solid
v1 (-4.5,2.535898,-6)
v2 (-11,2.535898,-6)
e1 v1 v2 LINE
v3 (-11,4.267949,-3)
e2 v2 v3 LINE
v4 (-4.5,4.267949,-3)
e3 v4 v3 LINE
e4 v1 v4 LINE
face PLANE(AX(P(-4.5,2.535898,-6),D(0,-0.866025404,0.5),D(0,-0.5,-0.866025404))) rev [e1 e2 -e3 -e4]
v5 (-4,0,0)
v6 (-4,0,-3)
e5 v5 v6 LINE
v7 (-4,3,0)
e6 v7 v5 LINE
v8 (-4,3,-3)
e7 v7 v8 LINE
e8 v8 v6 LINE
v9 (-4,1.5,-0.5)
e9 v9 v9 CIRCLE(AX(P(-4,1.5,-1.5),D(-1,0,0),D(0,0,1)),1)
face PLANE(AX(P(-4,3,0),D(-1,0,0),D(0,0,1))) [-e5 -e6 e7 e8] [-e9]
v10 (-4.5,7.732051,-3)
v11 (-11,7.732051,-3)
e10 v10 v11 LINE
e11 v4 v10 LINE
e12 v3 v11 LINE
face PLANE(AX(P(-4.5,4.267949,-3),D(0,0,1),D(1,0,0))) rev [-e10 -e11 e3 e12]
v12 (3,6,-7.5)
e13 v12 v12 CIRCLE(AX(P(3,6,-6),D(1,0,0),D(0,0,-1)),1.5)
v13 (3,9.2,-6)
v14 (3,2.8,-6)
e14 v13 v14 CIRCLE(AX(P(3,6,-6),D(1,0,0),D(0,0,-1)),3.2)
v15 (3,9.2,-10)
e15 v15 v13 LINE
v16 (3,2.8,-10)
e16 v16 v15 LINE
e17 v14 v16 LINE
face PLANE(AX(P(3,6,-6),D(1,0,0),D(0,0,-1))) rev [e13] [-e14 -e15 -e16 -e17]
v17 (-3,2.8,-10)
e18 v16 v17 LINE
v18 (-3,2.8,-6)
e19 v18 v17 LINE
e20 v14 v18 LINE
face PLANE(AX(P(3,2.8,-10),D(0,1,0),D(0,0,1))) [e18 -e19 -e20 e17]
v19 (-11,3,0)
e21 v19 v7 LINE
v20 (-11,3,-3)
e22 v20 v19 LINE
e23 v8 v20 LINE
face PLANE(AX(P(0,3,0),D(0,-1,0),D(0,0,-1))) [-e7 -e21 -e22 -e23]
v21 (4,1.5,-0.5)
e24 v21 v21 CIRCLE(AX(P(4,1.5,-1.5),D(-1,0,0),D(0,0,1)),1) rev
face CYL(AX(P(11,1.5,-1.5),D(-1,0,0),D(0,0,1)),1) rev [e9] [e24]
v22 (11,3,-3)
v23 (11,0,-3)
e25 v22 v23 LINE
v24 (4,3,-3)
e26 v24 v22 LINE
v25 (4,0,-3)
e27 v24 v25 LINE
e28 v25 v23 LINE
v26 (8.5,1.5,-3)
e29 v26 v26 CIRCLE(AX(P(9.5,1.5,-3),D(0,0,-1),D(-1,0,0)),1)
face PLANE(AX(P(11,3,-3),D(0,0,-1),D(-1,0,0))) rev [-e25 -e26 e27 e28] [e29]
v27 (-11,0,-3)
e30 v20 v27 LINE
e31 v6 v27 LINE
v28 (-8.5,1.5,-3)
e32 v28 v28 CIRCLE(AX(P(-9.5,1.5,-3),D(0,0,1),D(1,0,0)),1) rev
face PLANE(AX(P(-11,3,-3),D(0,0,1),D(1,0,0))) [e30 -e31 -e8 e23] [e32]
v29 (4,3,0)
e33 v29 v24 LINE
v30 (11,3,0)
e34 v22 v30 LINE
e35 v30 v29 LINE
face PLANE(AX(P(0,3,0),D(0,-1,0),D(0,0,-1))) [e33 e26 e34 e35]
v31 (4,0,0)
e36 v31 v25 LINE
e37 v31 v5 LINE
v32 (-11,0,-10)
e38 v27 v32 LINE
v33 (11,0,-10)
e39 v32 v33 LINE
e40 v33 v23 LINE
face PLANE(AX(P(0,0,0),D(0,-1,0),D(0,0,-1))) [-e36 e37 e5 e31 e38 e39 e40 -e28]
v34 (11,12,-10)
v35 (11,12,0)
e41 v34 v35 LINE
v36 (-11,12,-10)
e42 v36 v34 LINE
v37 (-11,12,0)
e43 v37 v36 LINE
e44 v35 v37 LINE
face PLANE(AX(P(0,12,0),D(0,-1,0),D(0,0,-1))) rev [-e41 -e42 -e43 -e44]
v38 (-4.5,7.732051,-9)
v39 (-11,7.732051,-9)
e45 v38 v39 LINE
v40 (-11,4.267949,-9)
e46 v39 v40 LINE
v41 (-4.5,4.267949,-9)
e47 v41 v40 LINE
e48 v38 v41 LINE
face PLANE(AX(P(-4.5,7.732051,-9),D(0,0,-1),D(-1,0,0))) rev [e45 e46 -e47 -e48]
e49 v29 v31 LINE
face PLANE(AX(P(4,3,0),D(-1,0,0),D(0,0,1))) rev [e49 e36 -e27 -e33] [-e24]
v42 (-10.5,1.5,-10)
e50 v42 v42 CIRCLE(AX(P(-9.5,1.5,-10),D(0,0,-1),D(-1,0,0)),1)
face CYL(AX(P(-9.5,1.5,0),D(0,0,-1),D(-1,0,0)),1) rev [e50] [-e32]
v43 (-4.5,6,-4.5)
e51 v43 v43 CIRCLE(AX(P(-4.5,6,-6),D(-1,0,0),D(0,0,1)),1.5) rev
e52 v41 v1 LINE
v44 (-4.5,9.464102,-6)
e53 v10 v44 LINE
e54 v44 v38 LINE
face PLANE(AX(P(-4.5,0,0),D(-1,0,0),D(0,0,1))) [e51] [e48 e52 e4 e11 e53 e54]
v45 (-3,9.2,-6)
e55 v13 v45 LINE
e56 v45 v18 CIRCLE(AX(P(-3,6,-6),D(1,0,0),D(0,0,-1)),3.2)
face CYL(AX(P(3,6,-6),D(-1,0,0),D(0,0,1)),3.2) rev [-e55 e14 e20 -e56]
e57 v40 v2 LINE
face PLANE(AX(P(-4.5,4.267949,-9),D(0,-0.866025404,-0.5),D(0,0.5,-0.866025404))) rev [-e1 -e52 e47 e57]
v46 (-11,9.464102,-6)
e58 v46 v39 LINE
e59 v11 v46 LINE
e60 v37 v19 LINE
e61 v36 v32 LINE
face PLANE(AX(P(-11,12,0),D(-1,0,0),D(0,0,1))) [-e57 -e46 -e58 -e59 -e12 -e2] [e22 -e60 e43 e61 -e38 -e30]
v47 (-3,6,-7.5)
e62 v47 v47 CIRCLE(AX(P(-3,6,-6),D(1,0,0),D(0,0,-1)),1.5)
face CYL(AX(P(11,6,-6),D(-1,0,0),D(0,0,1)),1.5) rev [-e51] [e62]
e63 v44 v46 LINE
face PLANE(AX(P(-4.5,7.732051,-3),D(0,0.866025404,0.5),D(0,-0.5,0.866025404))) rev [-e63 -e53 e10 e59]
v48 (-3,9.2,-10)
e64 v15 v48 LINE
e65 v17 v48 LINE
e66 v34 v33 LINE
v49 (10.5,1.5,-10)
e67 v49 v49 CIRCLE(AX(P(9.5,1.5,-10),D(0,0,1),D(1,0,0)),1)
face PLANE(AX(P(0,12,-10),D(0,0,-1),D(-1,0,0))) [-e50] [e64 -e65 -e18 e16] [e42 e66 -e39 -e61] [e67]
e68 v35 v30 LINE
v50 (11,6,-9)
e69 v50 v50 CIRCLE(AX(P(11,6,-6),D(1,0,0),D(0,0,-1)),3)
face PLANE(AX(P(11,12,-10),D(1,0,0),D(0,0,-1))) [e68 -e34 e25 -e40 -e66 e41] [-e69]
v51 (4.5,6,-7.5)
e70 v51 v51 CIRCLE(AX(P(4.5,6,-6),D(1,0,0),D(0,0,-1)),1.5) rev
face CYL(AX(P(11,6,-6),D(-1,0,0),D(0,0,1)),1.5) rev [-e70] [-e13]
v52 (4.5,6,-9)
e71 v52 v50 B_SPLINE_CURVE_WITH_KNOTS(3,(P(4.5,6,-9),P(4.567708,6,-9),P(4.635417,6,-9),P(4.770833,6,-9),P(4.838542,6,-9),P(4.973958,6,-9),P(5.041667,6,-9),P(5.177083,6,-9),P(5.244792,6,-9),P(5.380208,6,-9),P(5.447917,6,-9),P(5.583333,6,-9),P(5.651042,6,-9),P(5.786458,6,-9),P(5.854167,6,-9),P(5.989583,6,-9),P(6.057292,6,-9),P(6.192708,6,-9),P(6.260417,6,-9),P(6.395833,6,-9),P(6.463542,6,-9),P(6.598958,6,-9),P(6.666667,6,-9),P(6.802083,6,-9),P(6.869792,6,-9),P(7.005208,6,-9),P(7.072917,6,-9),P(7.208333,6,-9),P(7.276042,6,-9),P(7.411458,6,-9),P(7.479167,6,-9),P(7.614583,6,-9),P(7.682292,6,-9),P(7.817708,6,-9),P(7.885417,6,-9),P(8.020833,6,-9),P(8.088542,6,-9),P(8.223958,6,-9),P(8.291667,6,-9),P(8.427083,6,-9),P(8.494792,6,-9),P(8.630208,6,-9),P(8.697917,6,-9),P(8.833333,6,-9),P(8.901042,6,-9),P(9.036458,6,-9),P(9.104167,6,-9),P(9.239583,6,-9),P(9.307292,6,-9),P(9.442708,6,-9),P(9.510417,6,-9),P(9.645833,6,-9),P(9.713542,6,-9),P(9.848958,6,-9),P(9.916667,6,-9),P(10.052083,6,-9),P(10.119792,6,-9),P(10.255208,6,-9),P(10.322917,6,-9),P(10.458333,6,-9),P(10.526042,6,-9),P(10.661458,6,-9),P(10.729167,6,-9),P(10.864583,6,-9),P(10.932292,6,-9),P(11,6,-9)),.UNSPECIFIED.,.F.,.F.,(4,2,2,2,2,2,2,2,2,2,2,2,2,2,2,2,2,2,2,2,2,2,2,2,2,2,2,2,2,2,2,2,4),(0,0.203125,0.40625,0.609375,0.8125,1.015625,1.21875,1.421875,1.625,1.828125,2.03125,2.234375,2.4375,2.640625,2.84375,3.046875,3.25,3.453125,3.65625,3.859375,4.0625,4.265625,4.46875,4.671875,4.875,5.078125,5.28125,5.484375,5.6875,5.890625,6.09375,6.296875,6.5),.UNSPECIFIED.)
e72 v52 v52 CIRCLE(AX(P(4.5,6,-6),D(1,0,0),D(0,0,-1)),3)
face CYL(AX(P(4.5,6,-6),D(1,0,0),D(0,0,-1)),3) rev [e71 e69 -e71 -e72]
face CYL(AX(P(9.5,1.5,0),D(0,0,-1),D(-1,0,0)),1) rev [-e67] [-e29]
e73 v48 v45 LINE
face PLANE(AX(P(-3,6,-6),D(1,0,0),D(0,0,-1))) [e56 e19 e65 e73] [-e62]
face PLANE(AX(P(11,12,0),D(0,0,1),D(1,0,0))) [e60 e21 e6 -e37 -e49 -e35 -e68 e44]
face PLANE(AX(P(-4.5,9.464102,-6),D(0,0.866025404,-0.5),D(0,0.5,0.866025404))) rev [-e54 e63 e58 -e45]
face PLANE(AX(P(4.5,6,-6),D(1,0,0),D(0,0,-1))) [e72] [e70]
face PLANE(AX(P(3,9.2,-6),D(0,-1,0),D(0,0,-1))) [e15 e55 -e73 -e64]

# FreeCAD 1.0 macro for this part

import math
import FreeCAD as App
import Part
import Sketcher

V = App.Vector
Q = App.Units.Quantity

doc = App.newDocument("Part")
body = doc.addObject("PartDesign::Body", "Body")

# Sketch on XZ plane
sketch1 = body.newObject("Sketcher::SketchObject", "Sketch")
sketch1.AttachmentSupport = (doc.getObject("XZ_Plane"), [""])
sketch1.MapMode = "FlatFace"
sketch1.addGeometry([
    Part.LineSegment(V(11, -10, 0), V(-11, -10, 0)),
    Part.LineSegment(V(-11, -10, 0), V(-11, 0, 0)),
    Part.LineSegment(V(-11, 0, 0), V(11, 0, 0)),
    Part.LineSegment(V(11, 0, 0), V(11, -10, 0)),
], False)
sketch1.addConstraint([
    Sketcher.Constraint("Coincident", 0, 2, 1, 1),
    Sketcher.Constraint("Coincident", 1, 2, 2, 1),
    Sketcher.Constraint("Coincident", 2, 2, 3, 1),
    Sketcher.Constraint("Coincident", 3, 2, 0, 1),
    Sketcher.Constraint("Horizontal", 0),
    Sketcher.Constraint("Vertical", 1),
    Sketcher.Constraint("Horizontal", 2),
    Sketcher.Constraint("Vertical", 3),
    Sketcher.Constraint("Symmetric", 1, 2, 2, 2, -1, 1),
    Sketcher.Constraint("DistanceX", 0, 2, 0, 1, 22.0),
    Sketcher.Constraint("DistanceY", 1, 1, 1, 2, 10.0),
])
pad1 = body.newObject("PartDesign::Pad", "Pad")
pad1.Profile = sketch1
pad1.Length = 12
pad1.Reversed = True

# Sketch on XY plane
sketch2 = body.newObject("Sketcher::SketchObject", "Sketch001")
sketch2.AttachmentSupport = (doc.getObject("XY_Plane"), [""])
sketch2.MapMode = "FlatFace"
sketch2.AttachmentOffset = App.Placement(V(0, 0, -10), App.Rotation())
sketch2.addGeometry(Part.Circle(V(-9.5, 1.5, 0), V(0, 0, 1), 1), False)
sketch2.addConstraint([
    Sketcher.Constraint("Diameter", 0, 2.0),
    Sketcher.Constraint("DistanceX", 0, 3, -1, 1, 9.5),
    Sketcher.Constraint("DistanceY", -1, 1, 0, 3, 1.5),
])
pocket1 = body.newObject("PartDesign::Pocket", "Pocket")
pocket1.Profile = sketch2
pocket1.Length = 10
pocket1.Reversed = True

# Sketch on YZ plane
sketch3 = body.newObject("Sketcher::SketchObject", "Sketch002")
sketch3.AttachmentSupport = (doc.getObject("YZ_Plane"), [""])
sketch3.MapMode = "FlatFace"
sketch3.addGeometry([
    Part.LineSegment(V(9.2, -10, 0), V(9.2, -6, 0)),
    Part.ArcOfCircle(Part.Circle(V(6, -6, 0), V(0, 0, 1), 3.2), math.radians(0), math.radians(180)),
    Part.LineSegment(V(2.8, -6, 0), V(2.8, -10, 0)),
    Part.LineSegment(V(2.8, -10, 0), V(9.2, -10, 0)),
], False)
sketch3.addConstraint([
    Sketcher.Constraint("Tangent", 0, 2, 1, 1),
    Sketcher.Constraint("Tangent", 1, 2, 2, 1),
    Sketcher.Constraint("Coincident", 2, 2, 3, 1),
    Sketcher.Constraint("Coincident", 3, 2, 0, 1),
    Sketcher.Constraint("Vertical", 0),
    Sketcher.Constraint("Vertical", 2),
    Sketcher.Constraint("Horizontal", 3),
    Sketcher.Constraint("Radius", 1, 3.2),
    Sketcher.Constraint("DistanceY", 0, 1, 0, 2, 4.0),
    Sketcher.Constraint("DistanceX", -1, 1, 1, 3, 6.0),
    Sketcher.Constraint("DistanceY", 1, 3, -1, 1, 6.0),
])
pocket2 = body.newObject("PartDesign::Pocket", "Pocket001")
pocket2.Profile = sketch3
pocket2.Type = "TwoLengths"
pocket2.Length = 3
pocket2.Length2 = 3
pocket2.Reversed = True

# Sketch on YZ plane
sketch4 = body.newObject("Sketcher::SketchObject", "Sketch003")
sketch4.AttachmentSupport = (doc.getObject("YZ_Plane"), [""])
sketch4.MapMode = "FlatFace"
sketch4.AttachmentOffset = App.Placement(V(0, 0, 3), App.Rotation())
sketch4.addGeometry(Part.Circle(V(6, -6, 0), V(0, 0, 1), 1.5), False)
sketch4.addConstraint([
    Sketcher.Constraint("Diameter", 0, 3.0),
    Sketcher.Constraint("DistanceX", -1, 1, 0, 3, 6.0),
    Sketcher.Constraint("DistanceY", 0, 3, -1, 1, 6.0),
])
pocket3 = body.newObject("PartDesign::Pocket", "Pocket002")
pocket3.Profile = sketch4
pocket3.Type = "ThroughAll"
pocket3.Midplane = True

# Sketch on XZ plane
sketch5 = body.newObject("Sketcher::SketchObject", "Sketch004")
sketch5.AttachmentSupport = (doc.getObject("XZ_Plane"), [""])
sketch5.MapMode = "FlatFace"
sketch5.addGeometry([
    Part.LineSegment(V(-11, -3, 0), V(-11, 0, 0)),
    Part.LineSegment(V(-11, 0, 0), V(-4, 0, 0)),
    Part.LineSegment(V(-4, 0, 0), V(-4, -3, 0)),
    Part.LineSegment(V(-4, -3, 0), V(-11, -3, 0)),
], False)
sketch5.addConstraint([
    Sketcher.Constraint("Coincident", 0, 2, 1, 1),
    Sketcher.Constraint("Coincident", 1, 2, 2, 1),
    Sketcher.Constraint("Coincident", 2, 2, 3, 1),
    Sketcher.Constraint("Coincident", 3, 2, 0, 1),
    Sketcher.Constraint("Vertical", 0),
    Sketcher.Constraint("Horizontal", 1),
    Sketcher.Constraint("Vertical", 2),
    Sketcher.Constraint("Horizontal", 3),
    Sketcher.Constraint("PointOnObject", 0, 2, -1),
    Sketcher.Constraint("DistanceX", 1, 1, 1, 2, 7.0),
    Sketcher.Constraint("DistanceY", 0, 1, 0, 2, 3.0),
    Sketcher.Constraint("DistanceX", 0, 2, -1, 1, 11.0),
])
pocket4 = body.newObject("PartDesign::Pocket", "Pocket003")
pocket4.Profile = sketch5
pocket4.Length = 3

# Sketch on YZ plane
sketch6 = body.newObject("Sketcher::SketchObject", "Sketch005")
sketch6.AttachmentSupport = (doc.getObject("YZ_Plane"), [""])
sketch6.MapMode = "FlatFace"
sketch6.AttachmentOffset = App.Placement(V(0, 0, -11), App.Rotation())
sketch6.addGeometry(Part.Circle(V(1.5, -1.5, 0), V(0, 0, 1), 1), False)
sketch6.addConstraint([
    Sketcher.Constraint("Diameter", 0, 2.0),
    Sketcher.Constraint("DistanceX", -1, 1, 0, 3, 1.5),
    Sketcher.Constraint("DistanceY", 0, 3, -1, 1, 1.5),
])
pocket5 = body.newObject("PartDesign::Pocket", "Pocket004")
pocket5.Profile = sketch6
pocket5.Type = "ThroughAll"
pocket5.Reversed = True
doc.recompute()

mirrored = body.newObject("PartDesign::Mirrored", "Mirrored")
mirrored.Originals = [pocket1, pocket4]
mirrored.MirrorPlane = (doc.getObject("YZ_Plane"), [""])
body.Tip = mirrored

# Sketch on YZ plane
sketch7 = body.newObject("Sketcher::SketchObject", "Sketch006")
sketch7.AttachmentSupport = (doc.getObject("YZ_Plane"), [""])
sketch7.MapMode = "FlatFace"
sketch7.AttachmentOffset = App.Placement(V(0, 0, 11), App.Rotation())
sketch7.addGeometry(Part.Circle(V(6, -6, 0), V(0, 0, 1), 3), False)
sketch7.addConstraint([
    Sketcher.Constraint("Diameter", 0, 6.0),
    Sketcher.Constraint("DistanceX", -1, 1, 0, 3, 6.0),
    Sketcher.Constraint("DistanceY", 0, 3, -1, 1, 6.0),
])
pocket6 = body.newObject("PartDesign::Pocket", "Pocket005")
pocket6.Profile = sketch7
pocket6.Length = 6.5

# Sketch on YZ plane
sketch8 = body.newObject("Sketcher::SketchObject", "Sketch007")
sketch8.AttachmentSupport = (doc.getObject("YZ_Plane"), [""])
sketch8.MapMode = "FlatFace"
sketch8.AttachmentOffset = App.Placement(V(0, 0, -11), App.Rotation())
sketch8.addGeometry([
    Part.LineSegment(V(7.7, -9, 0), V(4.3, -9, 0)),  # 0
    Part.LineSegment(V(4.3, -9, 0), V(2.5, -6, 0)),  # 1
    Part.LineSegment(V(2.5, -6, 0), V(4.3, -3, 0)),  # 2
    Part.LineSegment(V(4.3, -3, 0), V(7.7, -3, 0)),  # 3
    Part.LineSegment(V(7.7, -3, 0), V(9.5, -6, 0)),  # 4
    Part.LineSegment(V(9.5, -6, 0), V(7.7, -9, 0)),  # 5
], False)
sketch8.addConstraint([
    Sketcher.Constraint("Coincident", 0, 2, 1, 1),
    Sketcher.Constraint("Coincident", 1, 2, 2, 1),
    Sketcher.Constraint("Coincident", 2, 2, 3, 1),
    Sketcher.Constraint("Coincident", 3, 2, 4, 1),
    Sketcher.Constraint("Coincident", 4, 2, 5, 1),
    Sketcher.Constraint("Coincident", 5, 2, 0, 1),
    Sketcher.Constraint("Horizontal", 0),
    Sketcher.Constraint("Horizontal", 3),
    Sketcher.Constraint("Parallel", 1, 4),
    Sketcher.Constraint("Parallel", 2, 5),
    Sketcher.Constraint("Horizontal", 1, 2, 4, 2),
    Sketcher.Constraint("Vertical", 0, 2, 2, 2),
    Sketcher.Constraint("Vertical", 3, 2, 5, 2),
    Sketcher.Constraint("Angle", 1, Q("120 deg")),
    Sketcher.Constraint("DistanceY", 0, 2, -1, 1, 9.0),
    Sketcher.Constraint("DistanceY", 1, 2, -1, 1, 6.0),
    Sketcher.Constraint("DistanceX", 0, 2, 0, 1, 3.464102),
    Sketcher.Constraint("DistanceX", -1, 1, 1, 2, 2.535898),
])
pocket7 = body.newObject("PartDesign::Pocket", "Pocket006")
pocket7.Profile = sketch8
pocket7.Length = 6.5
pocket7.Reversed = True

doc.recompute()
